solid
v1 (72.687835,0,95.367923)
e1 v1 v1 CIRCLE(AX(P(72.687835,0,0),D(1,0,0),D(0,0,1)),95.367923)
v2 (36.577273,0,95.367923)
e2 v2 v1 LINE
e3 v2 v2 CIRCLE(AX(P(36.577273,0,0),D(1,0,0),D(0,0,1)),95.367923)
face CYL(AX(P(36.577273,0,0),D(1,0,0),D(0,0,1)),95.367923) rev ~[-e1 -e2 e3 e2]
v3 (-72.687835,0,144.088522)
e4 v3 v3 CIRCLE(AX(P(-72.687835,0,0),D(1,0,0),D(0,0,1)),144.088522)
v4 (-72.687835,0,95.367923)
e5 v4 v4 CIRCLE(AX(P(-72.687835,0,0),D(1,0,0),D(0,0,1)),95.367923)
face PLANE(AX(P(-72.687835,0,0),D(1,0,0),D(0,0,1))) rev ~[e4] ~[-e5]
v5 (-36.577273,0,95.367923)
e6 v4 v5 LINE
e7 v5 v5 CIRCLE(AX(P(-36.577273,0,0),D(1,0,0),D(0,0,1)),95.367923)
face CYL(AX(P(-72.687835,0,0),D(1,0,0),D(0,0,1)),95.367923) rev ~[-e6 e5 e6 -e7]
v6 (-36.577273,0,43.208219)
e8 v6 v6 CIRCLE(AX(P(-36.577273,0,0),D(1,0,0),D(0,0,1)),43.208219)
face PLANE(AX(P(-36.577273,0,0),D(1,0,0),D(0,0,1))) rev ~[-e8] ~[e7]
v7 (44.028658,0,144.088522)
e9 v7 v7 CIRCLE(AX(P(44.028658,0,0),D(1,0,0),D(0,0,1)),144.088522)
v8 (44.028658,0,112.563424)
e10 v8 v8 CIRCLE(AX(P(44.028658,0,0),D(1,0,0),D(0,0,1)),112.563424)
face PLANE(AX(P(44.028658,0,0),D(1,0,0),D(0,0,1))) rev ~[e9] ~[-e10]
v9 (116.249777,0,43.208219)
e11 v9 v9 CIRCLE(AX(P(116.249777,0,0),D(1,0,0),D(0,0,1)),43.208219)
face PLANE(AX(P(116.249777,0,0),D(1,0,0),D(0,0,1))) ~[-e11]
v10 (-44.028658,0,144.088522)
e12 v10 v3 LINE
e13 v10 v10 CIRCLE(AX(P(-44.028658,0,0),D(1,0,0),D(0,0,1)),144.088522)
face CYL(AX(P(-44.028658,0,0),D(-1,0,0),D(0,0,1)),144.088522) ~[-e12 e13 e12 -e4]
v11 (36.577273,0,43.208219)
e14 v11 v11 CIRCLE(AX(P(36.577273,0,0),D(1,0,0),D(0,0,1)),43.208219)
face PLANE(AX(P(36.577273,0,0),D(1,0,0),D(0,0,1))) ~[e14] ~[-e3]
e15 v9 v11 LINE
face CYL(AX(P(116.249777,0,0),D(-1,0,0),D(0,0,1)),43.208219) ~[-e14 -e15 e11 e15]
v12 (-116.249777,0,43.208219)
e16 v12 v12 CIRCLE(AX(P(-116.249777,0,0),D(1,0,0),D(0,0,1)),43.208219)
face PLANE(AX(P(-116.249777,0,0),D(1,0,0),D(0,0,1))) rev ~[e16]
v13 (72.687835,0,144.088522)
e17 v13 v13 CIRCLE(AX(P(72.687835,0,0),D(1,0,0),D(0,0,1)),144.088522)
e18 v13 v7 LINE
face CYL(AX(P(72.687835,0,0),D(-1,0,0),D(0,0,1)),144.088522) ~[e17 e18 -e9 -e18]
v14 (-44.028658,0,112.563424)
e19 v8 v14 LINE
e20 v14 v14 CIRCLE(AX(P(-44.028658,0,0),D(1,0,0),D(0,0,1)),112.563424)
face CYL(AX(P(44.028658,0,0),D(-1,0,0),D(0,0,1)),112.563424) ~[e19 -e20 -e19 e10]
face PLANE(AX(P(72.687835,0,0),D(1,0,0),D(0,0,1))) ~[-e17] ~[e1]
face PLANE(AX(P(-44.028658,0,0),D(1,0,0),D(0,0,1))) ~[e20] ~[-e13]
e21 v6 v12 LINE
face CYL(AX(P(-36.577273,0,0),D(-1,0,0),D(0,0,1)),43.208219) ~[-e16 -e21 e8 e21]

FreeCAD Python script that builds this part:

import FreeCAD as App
import Part
import Sketcher

V = App.Vector
Q = App.Units.Quantity

doc = App.newDocument("Part")
params = doc.addObject("Spreadsheet::Sheet", "Params")
for row, (alias, value) in enumerate([
    ("revolution_angle", "360 deg"),
], start=1):
    params.set(f"A{row}", alias)
    params.set(f"B{row}", "=" + value)
    params.setAlias(f"B{row}", alias)

body = doc.addObject("PartDesign::Body", "Body")

sketch1 = doc.addObject("Sketcher::SketchObject", "Sketch")
body.addObject(sketch1)
sketch1.AttachmentSupport = (doc.XZ_Plane, [""])
sketch1.MapMode = "FlatFace"
sketch1.addGeometry(Part.LineSegment(V(-44, 144, 0), V(-73, 144, 0)), False)
sketch1.addGeometry(Part.LineSegment(V(-73, 144, 0), V(-73, 95, 0)), False)
sketch1.addGeometry(Part.LineSegment(V(-73, 95, 0), V(-37, 95, 0)), False)
sketch1.addGeometry(Part.LineSegment(V(-37, 95, 0), V(-37, 43, 0)), False)
sketch1.addGeometry(Part.LineSegment(V(-37, 43, 0), V(-116, 43, 0)), False)
sketch1.addGeometry(Part.LineSegment(V(-116, 43, 0), V(-116, 0, 0)), False)
sketch1.addGeometry(Part.LineSegment(V(-116, 0, 0), V(116, 0, 0)), False)
sketch1.addGeometry(Part.LineSegment(V(116, 0, 0), V(116, 43, 0)), False)
sketch1.addGeometry(Part.LineSegment(V(116, 43, 0), V(37, 43, 0)), False)
sketch1.addGeometry(Part.LineSegment(V(37, 43, 0), V(37, 95, 0)), False)
sketch1.addGeometry(Part.LineSegment(V(37, 95, 0), V(73, 95, 0)), False)
sketch1.addGeometry(Part.LineSegment(V(73, 95, 0), V(73, 144, 0)), False)
sketch1.addGeometry(Part.LineSegment(V(73, 144, 0), V(44, 144, 0)), False)
sketch1.addGeometry(Part.LineSegment(V(44, 144, 0), V(44, 113, 0)), False)
sketch1.addGeometry(Part.LineSegment(V(44, 113, 0), V(-44, 113, 0)), False)
sketch1.addGeometry(Part.LineSegment(V(-44, 113, 0), V(-44, 144, 0)), False)
sketch1.addConstraint(Sketcher.Constraint("Coincident", 0, 2, 1, 1))
sketch1.addConstraint(Sketcher.Constraint("Coincident", 1, 2, 2, 1))
sketch1.addConstraint(Sketcher.Constraint("Coincident", 2, 2, 3, 1))
sketch1.addConstraint(Sketcher.Constraint("Coincident", 3, 2, 4, 1))
sketch1.addConstraint(Sketcher.Constraint("Coincident", 4, 2, 5, 1))
sketch1.addConstraint(Sketcher.Constraint("Coincident", 5, 2, 6, 1))
sketch1.addConstraint(Sketcher.Constraint("Coincident", 6, 2, 7, 1))
sketch1.addConstraint(Sketcher.Constraint("Coincident", 7, 2, 8, 1))
sketch1.addConstraint(Sketcher.Constraint("Coincident", 8, 2, 9, 1))
sketch1.addConstraint(Sketcher.Constraint("Coincident", 9, 2, 10, 1))
sketch1.addConstraint(Sketcher.Constraint("Coincident", 10, 2, 11, 1))
sketch1.addConstraint(Sketcher.Constraint("Coincident", 11, 2, 12, 1))
sketch1.addConstraint(Sketcher.Constraint("Coincident", 12, 2, 13, 1))
sketch1.addConstraint(Sketcher.Constraint("Coincident", 13, 2, 14, 1))
sketch1.addConstraint(Sketcher.Constraint("Coincident", 14, 2, 15, 1))
sketch1.addConstraint(Sketcher.Constraint("Coincident", 15, 2, 0, 1))
sketch1.addConstraint(Sketcher.Constraint("Horizontal", 0))
sketch1.addConstraint(Sketcher.Constraint("Vertical", 1))
sketch1.addConstraint(Sketcher.Constraint("Horizontal", 2))
sketch1.addConstraint(Sketcher.Constraint("Vertical", 3))
sketch1.addConstraint(Sketcher.Constraint("Horizontal", 4))
sketch1.addConstraint(Sketcher.Constraint("Vertical", 5))
sketch1.addConstraint(Sketcher.Constraint("Horizontal", 6))
sketch1.addConstraint(Sketcher.Constraint("Vertical", 7))
sketch1.addConstraint(Sketcher.Constraint("Horizontal", 8))
sketch1.addConstraint(Sketcher.Constraint("Vertical", 9))
sketch1.addConstraint(Sketcher.Constraint("Horizontal", 10))
sketch1.addConstraint(Sketcher.Constraint("Vertical", 11))
sketch1.addConstraint(Sketcher.Constraint("Horizontal", 12))
sketch1.addConstraint(Sketcher.Constraint("Vertical", 13))
sketch1.addConstraint(Sketcher.Constraint("Horizontal", 14))
sketch1.addConstraint(Sketcher.Constraint("Vertical", 15))
sketch1.addConstraint(Sketcher.Constraint("Symmetric", 5, 2, 6, 2, -1, 1))
sketch1.addConstraint(Sketcher.Constraint("Symmetric", 3, 2, 8, 2, -2))
sketch1.addConstraint(Sketcher.Constraint("Symmetric", 1, 2, 10, 2, -2))
sketch1.addConstraint(Sketcher.Constraint("Symmetric", 12, 2, 15, 2, -2))
sketch1.addConstraint(Sketcher.Constraint("DistanceY", 1, 2, 1, 1, Q("48.720599 mm")))
sketch1.addConstraint(Sketcher.Constraint("DistanceY", 13, 2, 13, 1, Q("31.525098 mm")))
sketch1.addConstraint(Sketcher.Constraint("DistanceY", 5, 2, 5, 1, Q("43.208219 mm")))
sketch1.addConstraint(Sketcher.Constraint("DistanceX", 0, 2, 0, 1, Q("28.659177 mm")))
sketch1.addConstraint(Sketcher.Constraint("DistanceX", 2, 1, 2, 2, Q("36.110562 mm")))
sketch1.addConstraint(Sketcher.Constraint("DistanceX", 4, 2, 4, 1, Q("79.672504 mm")))
sketch1.addConstraint(Sketcher.Constraint("DistanceX", 6, 1, 6, 2, Q("232.499554 mm")))
sketch1.addConstraint(Sketcher.Constraint("DistanceY", 3, 2, 3, 1, Q("52.159704 mm")))
revolution = doc.addObject("PartDesign::Revolution", "Revolution")
body.addObject(revolution)
revolution.Profile = sketch1
revolution.ReferenceAxis = (sketch1, ["H_Axis"])
revolution.setExpression("Angle", "Params.revolution_angle")

doc.recompute()
